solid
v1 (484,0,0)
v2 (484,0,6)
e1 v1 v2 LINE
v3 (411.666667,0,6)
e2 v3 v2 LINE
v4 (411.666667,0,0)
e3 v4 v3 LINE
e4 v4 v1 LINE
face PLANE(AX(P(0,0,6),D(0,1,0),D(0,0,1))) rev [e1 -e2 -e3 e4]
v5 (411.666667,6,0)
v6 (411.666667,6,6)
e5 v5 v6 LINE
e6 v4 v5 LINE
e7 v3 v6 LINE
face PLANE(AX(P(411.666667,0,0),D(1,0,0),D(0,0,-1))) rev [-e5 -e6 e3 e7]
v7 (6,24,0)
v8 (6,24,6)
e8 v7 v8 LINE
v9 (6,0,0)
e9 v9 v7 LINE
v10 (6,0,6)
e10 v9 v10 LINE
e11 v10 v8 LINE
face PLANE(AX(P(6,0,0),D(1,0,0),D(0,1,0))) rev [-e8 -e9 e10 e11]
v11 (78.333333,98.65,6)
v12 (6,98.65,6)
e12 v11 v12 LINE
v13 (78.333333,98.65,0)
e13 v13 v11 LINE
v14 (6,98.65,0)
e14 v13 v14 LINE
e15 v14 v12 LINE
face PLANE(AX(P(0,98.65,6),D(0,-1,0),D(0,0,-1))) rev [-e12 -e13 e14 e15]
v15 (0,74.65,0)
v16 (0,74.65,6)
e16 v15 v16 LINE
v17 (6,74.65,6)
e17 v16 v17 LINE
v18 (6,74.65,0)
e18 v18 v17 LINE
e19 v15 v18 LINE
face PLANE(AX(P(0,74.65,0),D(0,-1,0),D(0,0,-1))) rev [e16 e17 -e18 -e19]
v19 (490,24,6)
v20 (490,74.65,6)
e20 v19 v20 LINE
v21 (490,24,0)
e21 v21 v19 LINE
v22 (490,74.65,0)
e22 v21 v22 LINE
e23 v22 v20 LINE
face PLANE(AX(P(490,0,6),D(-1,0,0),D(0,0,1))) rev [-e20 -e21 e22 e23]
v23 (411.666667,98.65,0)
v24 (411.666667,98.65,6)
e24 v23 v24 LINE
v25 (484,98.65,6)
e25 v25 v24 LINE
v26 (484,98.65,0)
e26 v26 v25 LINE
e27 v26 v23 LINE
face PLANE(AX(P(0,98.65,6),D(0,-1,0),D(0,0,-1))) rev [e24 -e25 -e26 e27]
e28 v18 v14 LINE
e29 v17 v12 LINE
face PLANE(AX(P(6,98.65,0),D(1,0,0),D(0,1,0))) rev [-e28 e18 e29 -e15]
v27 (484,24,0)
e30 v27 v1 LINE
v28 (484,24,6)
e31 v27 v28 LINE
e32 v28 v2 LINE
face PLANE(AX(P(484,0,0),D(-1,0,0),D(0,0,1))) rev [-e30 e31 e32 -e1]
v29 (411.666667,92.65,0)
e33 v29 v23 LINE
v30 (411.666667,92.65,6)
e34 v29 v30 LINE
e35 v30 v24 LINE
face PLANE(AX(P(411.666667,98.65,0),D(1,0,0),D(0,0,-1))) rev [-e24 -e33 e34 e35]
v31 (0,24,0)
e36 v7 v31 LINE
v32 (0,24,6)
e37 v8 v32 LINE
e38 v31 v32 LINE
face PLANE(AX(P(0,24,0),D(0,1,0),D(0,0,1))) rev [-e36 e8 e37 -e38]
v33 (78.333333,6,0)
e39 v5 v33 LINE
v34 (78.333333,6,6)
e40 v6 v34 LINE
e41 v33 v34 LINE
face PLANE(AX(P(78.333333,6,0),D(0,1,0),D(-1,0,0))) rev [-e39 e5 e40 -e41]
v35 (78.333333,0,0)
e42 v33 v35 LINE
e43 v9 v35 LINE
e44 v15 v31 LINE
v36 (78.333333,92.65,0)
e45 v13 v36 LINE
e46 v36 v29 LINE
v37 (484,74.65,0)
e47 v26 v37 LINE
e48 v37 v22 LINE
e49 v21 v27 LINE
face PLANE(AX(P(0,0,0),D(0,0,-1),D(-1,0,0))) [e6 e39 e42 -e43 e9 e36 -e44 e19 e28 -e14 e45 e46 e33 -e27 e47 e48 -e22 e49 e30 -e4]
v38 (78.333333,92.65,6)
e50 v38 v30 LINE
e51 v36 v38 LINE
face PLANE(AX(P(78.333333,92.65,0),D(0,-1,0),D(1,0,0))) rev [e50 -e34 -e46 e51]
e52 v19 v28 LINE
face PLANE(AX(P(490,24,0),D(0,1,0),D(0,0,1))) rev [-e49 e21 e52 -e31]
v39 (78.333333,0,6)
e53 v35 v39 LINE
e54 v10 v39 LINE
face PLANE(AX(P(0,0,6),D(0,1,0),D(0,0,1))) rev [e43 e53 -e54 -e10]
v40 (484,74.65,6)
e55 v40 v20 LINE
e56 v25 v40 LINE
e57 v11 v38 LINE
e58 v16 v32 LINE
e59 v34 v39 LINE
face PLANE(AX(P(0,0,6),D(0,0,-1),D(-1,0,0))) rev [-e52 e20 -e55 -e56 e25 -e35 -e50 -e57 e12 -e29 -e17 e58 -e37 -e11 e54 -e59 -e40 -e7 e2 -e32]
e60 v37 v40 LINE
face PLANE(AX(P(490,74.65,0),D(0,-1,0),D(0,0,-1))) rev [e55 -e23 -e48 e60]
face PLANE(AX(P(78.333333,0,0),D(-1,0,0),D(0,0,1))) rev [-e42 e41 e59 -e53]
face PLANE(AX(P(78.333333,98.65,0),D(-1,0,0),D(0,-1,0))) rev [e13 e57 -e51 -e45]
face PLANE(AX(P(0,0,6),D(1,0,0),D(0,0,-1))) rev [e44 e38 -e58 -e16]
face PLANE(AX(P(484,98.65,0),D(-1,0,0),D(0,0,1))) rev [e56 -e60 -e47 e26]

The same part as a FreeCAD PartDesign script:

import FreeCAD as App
import Part
import Sketcher
from FreeCAD import Vector

doc = App.newDocument("Part")
body = doc.addObject("PartDesign::Body", "Body")

# Sketch on XY plane
sketch1 = body.newObject("Sketcher::SketchObject", "Sketch")
sketch1.AttachmentSupport = (doc.getObject("XY_Plane"), [""])
sketch1.MapMode = "FlatFace"
sketch1.addGeometry([
    Part.LineSegment(Vector(0, 98.65, 0), Vector(0, 0, 0)),
    Part.LineSegment(Vector(0, 0, 0), Vector(490, 0, 0)),
    Part.LineSegment(Vector(490, 0, 0), Vector(490, 98.65, 0)),
    Part.LineSegment(Vector(490, 98.65, 0), Vector(0, 98.65, 0)),
], False)
sketch1.addConstraint([
    Sketcher.Constraint("Coincident", 0, 2, 1, 1),
    Sketcher.Constraint("Coincident", 1, 2, 2, 1),
    Sketcher.Constraint("Coincident", 2, 2, 3, 1),
    Sketcher.Constraint("Coincident", 3, 2, 0, 1),
    Sketcher.Constraint("Vertical", 0),
    Sketcher.Constraint("Horizontal", 1),
    Sketcher.Constraint("Vertical", 2),
    Sketcher.Constraint("Horizontal", 3),
    Sketcher.Constraint("Coincident", 0, 2, -1, 1),
    Sketcher.Constraint("DistanceX", 1, 1, 1, 2, 490.0),
    Sketcher.Constraint("DistanceY", 0, 2, 0, 1, 98.65),
])
pad1 = body.newObject("PartDesign::Pad", "Pad")
pad1.Profile = sketch1
pad1.Length = 6

# Sketch on XY plane
sketch2 = body.newObject("Sketcher::SketchObject", "Sketch001")
sketch2.AttachmentSupport = (doc.getObject("XY_Plane"), [""])
sketch2.MapMode = "FlatFace"
sketch2.AttachmentOffset = App.Placement(Vector(0, 0, 6), App.Rotation())
sketch2.addGeometry([
    Part.LineSegment(Vector(484, 98.65, 0), Vector(484, 74.65, 0)),  # 0
    Part.LineSegment(Vector(484, 74.65, 0), Vector(490, 74.65, 0)),  # 1
    Part.LineSegment(Vector(490, 74.65, 0), Vector(490, 98.65, 0)),  # 2
    Part.LineSegment(Vector(490, 98.65, 0), Vector(484, 98.65, 0)),  # 3
    Part.LineSegment(Vector(484, 24, 0), Vector(484, 0, 0)),  # 4
    Part.LineSegment(Vector(484, 0, 0), Vector(490, 0, 0)),  # 5
    Part.LineSegment(Vector(490, 0, 0), Vector(490, 24, 0)),  # 6
    Part.LineSegment(Vector(490, 24, 0), Vector(484, 24, 0)),  # 7
    Part.LineSegment(Vector(0, 24, 0), Vector(0, 0, 0)),  # 8
    Part.LineSegment(Vector(0, 0, 0), Vector(6, 0, 0)),  # 9
    Part.LineSegment(Vector(6, 0, 0), Vector(6, 24, 0)),  # 10
    Part.LineSegment(Vector(6, 24, 0), Vector(0, 24, 0)),  # 11
    Part.LineSegment(Vector(0, 98.65, 0), Vector(0, 74.65, 0)),  # 12
    Part.LineSegment(Vector(0, 74.65, 0), Vector(6, 74.65, 0)),  # 13
    Part.LineSegment(Vector(6, 74.65, 0), Vector(6, 98.65, 0)),  # 14
    Part.LineSegment(Vector(6, 98.65, 0), Vector(0, 98.65, 0)),  # 15
    Part.LineSegment(Vector(78.333333, 98.65, 0), Vector(78.333333, 92.65, 0)),  # 16
    Part.LineSegment(Vector(78.333333, 92.65, 0), Vector(411.666667, 92.65, 0)),  # 17
    Part.LineSegment(Vector(411.666667, 92.65, 0), Vector(411.666667, 98.65, 0)),  # 18
    Part.LineSegment(Vector(411.666667, 98.65, 0), Vector(78.333333, 98.65, 0)),  # 19
    Part.LineSegment(Vector(78.333333, 6, 0), Vector(78.333333, 0, 0)),  # 20
    Part.LineSegment(Vector(78.333333, 0, 0), Vector(411.666667, 0, 0)),  # 21
    Part.LineSegment(Vector(411.666667, 0, 0), Vector(411.666667, 6, 0)),  # 22
    Part.LineSegment(Vector(411.666667, 6, 0), Vector(78.333333, 6, 0)),  # 23
], False)
sketch2.addConstraint([
    Sketcher.Constraint("Coincident", 0, 2, 1, 1),
    Sketcher.Constraint("Coincident", 1, 2, 2, 1),
    Sketcher.Constraint("Coincident", 2, 2, 3, 1),
    Sketcher.Constraint("Coincident", 3, 2, 0, 1),
    Sketcher.Constraint("Coincident", 4, 2, 5, 1),
    Sketcher.Constraint("Coincident", 5, 2, 6, 1),
    Sketcher.Constraint("Coincident", 6, 2, 7, 1),
    Sketcher.Constraint("Coincident", 7, 2, 4, 1),
    Sketcher.Constraint("Coincident", 8, 2, 9, 1),
    Sketcher.Constraint("Coincident", 9, 2, 10, 1),
    Sketcher.Constraint("Coincident", 10, 2, 11, 1),
    Sketcher.Constraint("Coincident", 11, 2, 8, 1),
    Sketcher.Constraint("Coincident", 12, 2, 13, 1),
    Sketcher.Constraint("Coincident", 13, 2, 14, 1),
    Sketcher.Constraint("Coincident", 14, 2, 15, 1),
    Sketcher.Constraint("Coincident", 15, 2, 12, 1),
    Sketcher.Constraint("Coincident", 16, 2, 17, 1),
    Sketcher.Constraint("Coincident", 17, 2, 18, 1),
    Sketcher.Constraint("Coincident", 18, 2, 19, 1),
    Sketcher.Constraint("Coincident", 19, 2, 16, 1),
    Sketcher.Constraint("Coincident", 20, 2, 21, 1),
    Sketcher.Constraint("Coincident", 21, 2, 22, 1),
    Sketcher.Constraint("Coincident", 22, 2, 23, 1),
    Sketcher.Constraint("Coincident", 23, 2, 20, 1),
    Sketcher.Constraint("Vertical", 0),
    Sketcher.Constraint("Horizontal", 1),
    Sketcher.Constraint("Vertical", 2),
    Sketcher.Constraint("Horizontal", 3),
    Sketcher.Constraint("Vertical", 4),
    Sketcher.Constraint("Horizontal", 5),
    Sketcher.Constraint("Vertical", 6),
    Sketcher.Constraint("Horizontal", 7),
    Sketcher.Constraint("Vertical", 8),
    Sketcher.Constraint("Horizontal", 9),
    Sketcher.Constraint("Vertical", 10),
    Sketcher.Constraint("Horizontal", 11),
    Sketcher.Constraint("Vertical", 12),
    Sketcher.Constraint("Horizontal", 13),
    Sketcher.Constraint("Vertical", 14),
    Sketcher.Constraint("Horizontal", 15),
    Sketcher.Constraint("Vertical", 16),
    Sketcher.Constraint("Horizontal", 17),
    Sketcher.Constraint("Vertical", 18),
    Sketcher.Constraint("Horizontal", 19),
    Sketcher.Constraint("Vertical", 20),
    Sketcher.Constraint("Horizontal", 21),
    Sketcher.Constraint("Vertical", 22),
    Sketcher.Constraint("Horizontal", 23),
    Sketcher.Constraint("Coincident", 8, 2, -1, 1),
    Sketcher.Constraint("PointOnObject", 4, 2, -1),
    Sketcher.Constraint("PointOnObject", 12, 2, -2),
    Sketcher.Constraint("PointOnObject", 20, 2, -1),
    Sketcher.Constraint("Horizontal", 7, 2, 10, 2),
    Sketcher.Constraint("Horizontal", 1, 2, 12, 2),
    Sketcher.Constraint("Horizontal", 3, 2, 14, 2),
    Sketcher.Constraint("Horizontal", 15, 2, 18, 2),
    Sketcher.Constraint("Vertical", 3, 2, 4, 2),
    Sketcher.Constraint("Vertical", 2, 2, 5, 2),
    Sketcher.Constraint("Vertical", 10, 2, 13, 2),
    Sketcher.Constraint("Vertical", 19, 2, 20, 2),
    Sketcher.Constraint("Vertical", 18, 2, 21, 2),
    Sketcher.Constraint("Equal", 7, 9),
    Sketcher.Constraint("Equal", 2, 4),
    Sketcher.Constraint("Equal", 15, 16),
    Sketcher.Constraint("Equal", 18, 20),
    Sketcher.Constraint("DistanceX", 1, 1, 1, 2, 6.0),
    Sketcher.Constraint("DistanceY", 0, 2, 0, 1, 24.0),
    Sketcher.Constraint("DistanceX", -1, 1, 0, 2, 484.0),
    Sketcher.Constraint("DistanceY", -1, 1, 0, 2, 74.65),
    Sketcher.Constraint("DistanceX", 17, 1, 17, 2, 333.333333),
    Sketcher.Constraint("DistanceX", -1, 1, 16, 2, 78.333333),
])
pocket1 = body.newObject("PartDesign::Pocket", "Pocket")
pocket1.Profile = sketch2
pocket1.Type = "ThroughAll"

doc.recompute()
